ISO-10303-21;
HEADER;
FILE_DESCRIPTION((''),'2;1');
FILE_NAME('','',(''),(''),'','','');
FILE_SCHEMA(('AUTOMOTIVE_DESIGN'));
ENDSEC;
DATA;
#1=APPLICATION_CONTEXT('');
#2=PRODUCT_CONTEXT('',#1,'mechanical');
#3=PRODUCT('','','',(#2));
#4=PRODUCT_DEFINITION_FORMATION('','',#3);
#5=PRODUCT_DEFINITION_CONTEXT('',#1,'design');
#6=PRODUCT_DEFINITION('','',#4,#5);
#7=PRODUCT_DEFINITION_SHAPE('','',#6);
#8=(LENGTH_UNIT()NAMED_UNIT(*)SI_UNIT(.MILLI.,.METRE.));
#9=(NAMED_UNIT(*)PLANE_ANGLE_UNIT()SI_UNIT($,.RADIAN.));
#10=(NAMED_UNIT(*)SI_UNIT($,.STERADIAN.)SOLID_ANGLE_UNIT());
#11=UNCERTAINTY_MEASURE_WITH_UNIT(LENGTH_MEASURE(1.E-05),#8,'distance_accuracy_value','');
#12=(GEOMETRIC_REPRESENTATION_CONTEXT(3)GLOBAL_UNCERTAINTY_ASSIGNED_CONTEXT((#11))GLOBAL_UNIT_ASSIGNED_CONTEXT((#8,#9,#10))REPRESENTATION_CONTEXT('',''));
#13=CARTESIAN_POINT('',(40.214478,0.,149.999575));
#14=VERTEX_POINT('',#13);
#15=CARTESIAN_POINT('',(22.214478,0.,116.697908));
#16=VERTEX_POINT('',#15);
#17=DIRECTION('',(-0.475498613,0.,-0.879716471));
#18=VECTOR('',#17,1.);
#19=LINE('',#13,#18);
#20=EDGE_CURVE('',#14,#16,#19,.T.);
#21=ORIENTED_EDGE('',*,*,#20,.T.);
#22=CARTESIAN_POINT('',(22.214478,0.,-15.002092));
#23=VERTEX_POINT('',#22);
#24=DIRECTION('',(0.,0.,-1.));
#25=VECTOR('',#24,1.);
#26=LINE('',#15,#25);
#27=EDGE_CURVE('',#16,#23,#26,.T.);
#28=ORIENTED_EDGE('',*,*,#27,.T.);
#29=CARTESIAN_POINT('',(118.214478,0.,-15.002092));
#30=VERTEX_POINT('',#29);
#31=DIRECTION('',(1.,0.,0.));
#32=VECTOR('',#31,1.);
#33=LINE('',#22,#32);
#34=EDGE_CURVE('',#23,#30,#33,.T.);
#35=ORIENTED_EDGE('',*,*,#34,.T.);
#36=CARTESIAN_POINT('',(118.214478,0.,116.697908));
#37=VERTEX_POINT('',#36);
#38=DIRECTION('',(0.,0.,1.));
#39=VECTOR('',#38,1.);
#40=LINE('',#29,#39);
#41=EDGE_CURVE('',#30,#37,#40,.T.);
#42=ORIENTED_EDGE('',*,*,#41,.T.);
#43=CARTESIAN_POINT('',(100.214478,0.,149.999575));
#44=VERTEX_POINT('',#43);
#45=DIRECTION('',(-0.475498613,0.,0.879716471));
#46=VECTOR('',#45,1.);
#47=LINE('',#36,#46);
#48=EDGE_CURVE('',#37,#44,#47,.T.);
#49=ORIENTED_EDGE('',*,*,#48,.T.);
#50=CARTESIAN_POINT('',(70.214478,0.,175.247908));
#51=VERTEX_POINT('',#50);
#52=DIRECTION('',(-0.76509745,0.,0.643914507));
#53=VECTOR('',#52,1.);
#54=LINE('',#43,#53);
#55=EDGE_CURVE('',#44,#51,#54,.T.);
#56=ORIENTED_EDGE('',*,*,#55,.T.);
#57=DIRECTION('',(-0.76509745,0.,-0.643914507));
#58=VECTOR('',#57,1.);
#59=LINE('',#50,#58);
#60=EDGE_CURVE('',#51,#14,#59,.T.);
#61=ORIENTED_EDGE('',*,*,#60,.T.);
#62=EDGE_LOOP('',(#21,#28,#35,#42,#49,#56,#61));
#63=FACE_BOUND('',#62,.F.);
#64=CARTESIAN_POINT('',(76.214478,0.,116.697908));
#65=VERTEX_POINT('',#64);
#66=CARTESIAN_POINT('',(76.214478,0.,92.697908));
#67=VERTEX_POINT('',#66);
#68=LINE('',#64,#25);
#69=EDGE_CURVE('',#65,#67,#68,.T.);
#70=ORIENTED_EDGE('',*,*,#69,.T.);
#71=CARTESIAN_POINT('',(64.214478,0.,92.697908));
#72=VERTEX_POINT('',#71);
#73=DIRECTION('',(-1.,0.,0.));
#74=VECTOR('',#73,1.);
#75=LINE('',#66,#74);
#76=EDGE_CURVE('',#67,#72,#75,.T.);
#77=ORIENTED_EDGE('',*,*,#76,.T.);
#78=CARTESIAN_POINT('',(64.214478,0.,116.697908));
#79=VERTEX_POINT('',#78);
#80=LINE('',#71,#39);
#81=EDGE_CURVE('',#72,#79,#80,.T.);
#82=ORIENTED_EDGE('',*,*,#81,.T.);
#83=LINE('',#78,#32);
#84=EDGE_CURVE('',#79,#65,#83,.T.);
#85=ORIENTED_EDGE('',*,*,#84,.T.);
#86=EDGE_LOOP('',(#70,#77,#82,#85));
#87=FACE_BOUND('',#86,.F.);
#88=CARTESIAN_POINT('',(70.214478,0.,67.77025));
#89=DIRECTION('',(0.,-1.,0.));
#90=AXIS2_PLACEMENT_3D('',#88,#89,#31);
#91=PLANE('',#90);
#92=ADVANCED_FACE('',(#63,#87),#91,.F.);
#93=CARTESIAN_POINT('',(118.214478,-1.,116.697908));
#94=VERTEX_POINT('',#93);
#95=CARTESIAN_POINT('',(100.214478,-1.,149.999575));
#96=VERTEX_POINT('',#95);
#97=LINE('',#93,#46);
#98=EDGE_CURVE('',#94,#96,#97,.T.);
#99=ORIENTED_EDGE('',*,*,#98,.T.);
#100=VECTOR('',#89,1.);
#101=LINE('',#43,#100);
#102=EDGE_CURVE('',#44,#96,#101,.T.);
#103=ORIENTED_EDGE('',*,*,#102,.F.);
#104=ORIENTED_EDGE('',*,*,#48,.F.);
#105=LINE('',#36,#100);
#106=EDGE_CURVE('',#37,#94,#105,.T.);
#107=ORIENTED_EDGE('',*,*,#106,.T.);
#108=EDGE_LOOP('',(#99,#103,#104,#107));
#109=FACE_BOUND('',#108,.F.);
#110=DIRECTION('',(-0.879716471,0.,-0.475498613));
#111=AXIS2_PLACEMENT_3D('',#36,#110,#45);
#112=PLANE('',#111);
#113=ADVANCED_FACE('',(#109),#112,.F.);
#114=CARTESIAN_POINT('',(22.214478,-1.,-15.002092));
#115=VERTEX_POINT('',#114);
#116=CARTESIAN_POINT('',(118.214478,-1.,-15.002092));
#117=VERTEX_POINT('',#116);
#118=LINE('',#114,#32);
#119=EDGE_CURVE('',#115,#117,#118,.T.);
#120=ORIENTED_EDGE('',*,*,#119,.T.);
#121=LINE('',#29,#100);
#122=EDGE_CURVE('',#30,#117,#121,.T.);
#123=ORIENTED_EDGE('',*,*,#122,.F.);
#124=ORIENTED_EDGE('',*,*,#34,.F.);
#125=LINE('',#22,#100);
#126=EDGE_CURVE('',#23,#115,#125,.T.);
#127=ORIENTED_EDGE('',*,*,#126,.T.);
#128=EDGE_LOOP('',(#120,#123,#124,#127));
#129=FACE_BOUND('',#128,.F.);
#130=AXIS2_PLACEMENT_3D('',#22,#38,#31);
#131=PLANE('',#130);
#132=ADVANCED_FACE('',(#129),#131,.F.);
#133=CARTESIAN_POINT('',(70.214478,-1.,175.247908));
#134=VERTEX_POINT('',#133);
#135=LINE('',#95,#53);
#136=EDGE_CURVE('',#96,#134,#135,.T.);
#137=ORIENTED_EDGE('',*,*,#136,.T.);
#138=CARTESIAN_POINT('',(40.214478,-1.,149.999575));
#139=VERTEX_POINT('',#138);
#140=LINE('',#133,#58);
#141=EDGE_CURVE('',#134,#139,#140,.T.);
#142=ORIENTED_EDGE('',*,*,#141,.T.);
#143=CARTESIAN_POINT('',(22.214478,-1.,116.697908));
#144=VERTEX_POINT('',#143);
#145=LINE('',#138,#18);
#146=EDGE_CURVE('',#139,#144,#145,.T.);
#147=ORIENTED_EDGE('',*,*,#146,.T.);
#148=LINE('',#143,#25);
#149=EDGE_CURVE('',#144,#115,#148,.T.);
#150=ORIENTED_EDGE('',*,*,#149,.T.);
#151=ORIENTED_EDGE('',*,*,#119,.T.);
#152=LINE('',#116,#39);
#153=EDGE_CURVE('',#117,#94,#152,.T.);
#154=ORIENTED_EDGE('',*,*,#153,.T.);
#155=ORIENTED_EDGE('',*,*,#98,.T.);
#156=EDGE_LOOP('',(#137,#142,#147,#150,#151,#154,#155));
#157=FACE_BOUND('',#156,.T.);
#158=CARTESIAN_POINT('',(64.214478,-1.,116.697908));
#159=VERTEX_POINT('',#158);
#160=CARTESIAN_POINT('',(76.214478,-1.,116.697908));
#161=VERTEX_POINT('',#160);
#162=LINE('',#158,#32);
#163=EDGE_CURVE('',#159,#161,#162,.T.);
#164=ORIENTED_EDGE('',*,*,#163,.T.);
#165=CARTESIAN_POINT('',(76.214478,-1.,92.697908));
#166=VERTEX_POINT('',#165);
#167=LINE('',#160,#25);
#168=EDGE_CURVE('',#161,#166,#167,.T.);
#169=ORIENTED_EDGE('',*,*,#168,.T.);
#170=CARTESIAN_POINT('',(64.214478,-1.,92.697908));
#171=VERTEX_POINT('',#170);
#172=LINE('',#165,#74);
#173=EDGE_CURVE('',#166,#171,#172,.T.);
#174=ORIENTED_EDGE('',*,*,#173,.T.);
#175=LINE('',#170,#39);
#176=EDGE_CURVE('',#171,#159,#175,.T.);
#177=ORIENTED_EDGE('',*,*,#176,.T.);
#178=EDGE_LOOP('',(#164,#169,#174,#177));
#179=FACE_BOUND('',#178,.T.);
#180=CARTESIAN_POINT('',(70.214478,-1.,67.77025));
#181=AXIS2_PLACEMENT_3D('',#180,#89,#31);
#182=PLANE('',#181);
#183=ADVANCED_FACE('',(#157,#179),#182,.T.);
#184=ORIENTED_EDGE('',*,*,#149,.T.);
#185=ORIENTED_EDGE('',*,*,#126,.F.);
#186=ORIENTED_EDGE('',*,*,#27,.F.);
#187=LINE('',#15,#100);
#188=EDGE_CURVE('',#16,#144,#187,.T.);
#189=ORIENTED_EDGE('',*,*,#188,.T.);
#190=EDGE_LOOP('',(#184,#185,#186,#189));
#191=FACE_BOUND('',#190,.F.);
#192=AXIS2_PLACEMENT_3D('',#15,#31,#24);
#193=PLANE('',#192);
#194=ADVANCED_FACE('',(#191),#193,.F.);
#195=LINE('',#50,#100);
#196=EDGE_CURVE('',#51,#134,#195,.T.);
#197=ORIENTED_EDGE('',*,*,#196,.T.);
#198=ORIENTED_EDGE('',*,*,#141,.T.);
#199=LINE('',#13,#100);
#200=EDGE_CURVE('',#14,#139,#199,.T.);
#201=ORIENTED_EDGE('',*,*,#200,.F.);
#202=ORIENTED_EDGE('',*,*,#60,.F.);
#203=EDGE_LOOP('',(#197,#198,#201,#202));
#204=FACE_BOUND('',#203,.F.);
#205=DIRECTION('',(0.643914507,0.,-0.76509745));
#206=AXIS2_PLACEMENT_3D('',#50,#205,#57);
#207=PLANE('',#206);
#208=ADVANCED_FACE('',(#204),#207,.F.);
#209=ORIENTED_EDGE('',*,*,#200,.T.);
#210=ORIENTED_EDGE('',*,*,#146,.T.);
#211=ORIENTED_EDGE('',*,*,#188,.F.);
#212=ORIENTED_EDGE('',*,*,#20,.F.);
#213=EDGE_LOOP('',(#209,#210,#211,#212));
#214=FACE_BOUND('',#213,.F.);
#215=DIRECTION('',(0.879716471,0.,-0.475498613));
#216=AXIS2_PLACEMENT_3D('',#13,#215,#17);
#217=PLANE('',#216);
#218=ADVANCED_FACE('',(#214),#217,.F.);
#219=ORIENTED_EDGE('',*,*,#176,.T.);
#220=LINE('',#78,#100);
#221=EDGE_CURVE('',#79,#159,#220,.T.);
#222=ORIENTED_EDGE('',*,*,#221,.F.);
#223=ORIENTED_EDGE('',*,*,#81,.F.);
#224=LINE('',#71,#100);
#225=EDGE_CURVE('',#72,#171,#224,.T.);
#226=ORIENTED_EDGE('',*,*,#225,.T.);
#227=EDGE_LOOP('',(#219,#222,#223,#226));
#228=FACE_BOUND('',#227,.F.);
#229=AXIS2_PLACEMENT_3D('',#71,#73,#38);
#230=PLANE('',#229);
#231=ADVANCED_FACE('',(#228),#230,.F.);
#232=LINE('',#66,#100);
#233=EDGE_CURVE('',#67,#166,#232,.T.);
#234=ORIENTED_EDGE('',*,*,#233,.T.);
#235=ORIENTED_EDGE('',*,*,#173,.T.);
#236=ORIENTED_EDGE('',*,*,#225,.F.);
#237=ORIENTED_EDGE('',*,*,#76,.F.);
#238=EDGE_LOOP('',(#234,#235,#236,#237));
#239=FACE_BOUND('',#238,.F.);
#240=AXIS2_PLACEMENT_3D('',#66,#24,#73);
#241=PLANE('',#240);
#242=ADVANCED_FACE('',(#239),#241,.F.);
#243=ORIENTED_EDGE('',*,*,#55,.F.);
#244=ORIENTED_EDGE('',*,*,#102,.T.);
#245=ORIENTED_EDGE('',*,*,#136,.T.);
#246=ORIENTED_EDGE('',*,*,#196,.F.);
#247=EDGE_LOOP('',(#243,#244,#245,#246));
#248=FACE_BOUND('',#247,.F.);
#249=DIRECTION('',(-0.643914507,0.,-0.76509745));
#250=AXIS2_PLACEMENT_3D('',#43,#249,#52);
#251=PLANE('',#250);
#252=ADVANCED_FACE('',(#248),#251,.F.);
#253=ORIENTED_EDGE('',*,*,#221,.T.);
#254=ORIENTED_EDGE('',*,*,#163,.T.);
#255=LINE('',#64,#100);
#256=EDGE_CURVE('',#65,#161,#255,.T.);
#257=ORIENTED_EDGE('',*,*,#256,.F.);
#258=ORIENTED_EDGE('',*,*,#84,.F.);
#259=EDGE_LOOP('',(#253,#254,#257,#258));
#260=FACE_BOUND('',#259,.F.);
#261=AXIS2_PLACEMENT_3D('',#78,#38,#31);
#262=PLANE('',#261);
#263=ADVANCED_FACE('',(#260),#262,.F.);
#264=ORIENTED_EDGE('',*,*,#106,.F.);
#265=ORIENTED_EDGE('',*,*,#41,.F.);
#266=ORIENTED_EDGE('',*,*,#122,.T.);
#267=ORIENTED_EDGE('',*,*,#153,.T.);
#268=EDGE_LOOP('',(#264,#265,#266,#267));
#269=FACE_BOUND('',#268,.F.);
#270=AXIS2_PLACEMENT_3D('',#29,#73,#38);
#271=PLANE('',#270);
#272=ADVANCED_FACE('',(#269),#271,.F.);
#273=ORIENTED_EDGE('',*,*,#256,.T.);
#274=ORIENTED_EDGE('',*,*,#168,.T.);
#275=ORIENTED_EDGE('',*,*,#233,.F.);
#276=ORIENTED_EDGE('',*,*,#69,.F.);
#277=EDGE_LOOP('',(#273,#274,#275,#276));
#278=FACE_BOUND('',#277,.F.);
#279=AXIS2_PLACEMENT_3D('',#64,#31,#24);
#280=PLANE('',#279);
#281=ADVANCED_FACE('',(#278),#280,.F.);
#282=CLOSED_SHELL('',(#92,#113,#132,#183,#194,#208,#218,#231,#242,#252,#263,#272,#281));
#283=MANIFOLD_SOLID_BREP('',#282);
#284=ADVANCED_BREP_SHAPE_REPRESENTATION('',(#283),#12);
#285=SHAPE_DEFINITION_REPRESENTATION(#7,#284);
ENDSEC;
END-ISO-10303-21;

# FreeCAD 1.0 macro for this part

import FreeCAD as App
import Part
import Sketcher

V = App.Vector
Q = App.Units.Quantity

doc = App.newDocument("Part")
body = doc.addObject("PartDesign::Body", "Body")

sketch1 = body.newObject("Sketcher::SketchObject", "Sketch")
sketch1.AttachmentSupport = (doc.getObject("XZ_Plane"), [""])
sketch1.MapMode = "FlatFace"
sketch1.addGeometry(Part.LineSegment(V(118, -15, 0), V(118, 117, 0)), False)
sketch1.addGeometry(Part.LineSegment(V(118, 117, 0), V(100, 150, 0)), False)
sketch1.addGeometry(Part.LineSegment(V(100, 150, 0), V(70, 175, 0)), False)
sketch1.addGeometry(Part.LineSegment(V(70, 175, 0), V(40, 150, 0)), False)
sketch1.addGeometry(Part.LineSegment(V(40, 150, 0), V(22, 117, 0)), False)
sketch1.addGeometry(Part.LineSegment(V(22, 117, 0), V(22, -15, 0)), False)
sketch1.addGeometry(Part.LineSegment(V(22, -15, 0), V(118, -15, 0)), False)
sketch1.addGeometry(Part.LineSegment(V(64, 93, 0), V(64, 117, 0)), False)
sketch1.addGeometry(Part.LineSegment(V(64, 117, 0), V(76, 117, 0)), False)
sketch1.addGeometry(Part.LineSegment(V(76, 117, 0), V(76, 93, 0)), False)
sketch1.addGeometry(Part.LineSegment(V(76, 93, 0), V(64, 93, 0)), False)
sketch1.addConstraint(Sketcher.Constraint("Coincident", 0, 2, 1, 1))
sketch1.addConstraint(Sketcher.Constraint("Coincident", 1, 2, 2, 1))
sketch1.addConstraint(Sketcher.Constraint("Coincident", 2, 2, 3, 1))
sketch1.addConstraint(Sketcher.Constraint("Coincident", 3, 2, 4, 1))
sketch1.addConstraint(Sketcher.Constraint("Coincident", 4, 2, 5, 1))
sketch1.addConstraint(Sketcher.Constraint("Coincident", 5, 2, 6, 1))
sketch1.addConstraint(Sketcher.Constraint("Coincident", 6, 2, 0, 1))
sketch1.addConstraint(Sketcher.Constraint("Coincident", 7, 2, 8, 1))
sketch1.addConstraint(Sketcher.Constraint("Coincident", 8, 2, 9, 1))
sketch1.addConstraint(Sketcher.Constraint("Coincident", 9, 2, 10, 1))
sketch1.addConstraint(Sketcher.Constraint("Coincident", 10, 2, 7, 1))
sketch1.addConstraint(Sketcher.Constraint("Vertical", 0))
sketch1.addConstraint(Sketcher.Constraint("Vertical", 5))
sketch1.addConstraint(Sketcher.Constraint("Horizontal", 6))
sketch1.addConstraint(Sketcher.Constraint("Vertical", 7))
sketch1.addConstraint(Sketcher.Constraint("Horizontal", 8))
sketch1.addConstraint(Sketcher.Constraint("Vertical", 9))
sketch1.addConstraint(Sketcher.Constraint("Horizontal", 10))
sketch1.addConstraint(Sketcher.Constraint("Horizontal", 1, 2, 3, 2))
sketch1.addConstraint(Sketcher.Constraint("Horizontal", 0, 2, 4, 2))
sketch1.addConstraint(Sketcher.Constraint("Horizontal", 4, 2, 7, 2))
sketch1.addConstraint(Sketcher.Constraint("Equal", 2, 3))
sketch1.addConstraint(Sketcher.Constraint("Equal", 1, 4))
sketch1.addConstraint(Sketcher.Constraint("DistanceX", 6, 1, 6, 2, Q("96 mm")))
sketch1.addConstraint(Sketcher.Constraint("DistanceX", 8, 1, 8, 2, Q("12 mm")))
sketch1.addConstraint(Sketcher.Constraint("DistanceY", 7, 1, 7, 2, Q("24 mm")))
sketch1.addConstraint(Sketcher.Constraint("DistanceY", 0, 1, 0, 2, Q("131.7 mm")))
sketch1.addConstraint(Sketcher.Constraint("DistanceX", 1, 2, 0, 2, Q("18 mm")))
sketch1.addConstraint(Sketcher.Constraint("DistanceX", 3, 2, 7, 2, Q("24 mm")))
sketch1.addConstraint(Sketcher.Constraint("DistanceY", 0, 2, 2, 2, Q("58.55 mm")))
sketch1.addConstraint(Sketcher.Constraint("Distance", 1, Q("37.855 mm")))
sketch1.addConstraint(Sketcher.Constraint("DistanceX", -1, 1, 0, 2, Q("118.214478 mm")))
sketch1.addConstraint(Sketcher.Constraint("DistanceY", -1, 1, 0, 2, Q("116.697908 mm")))
pad1 = body.newObject("PartDesign::Pad", "Pad")
pad1.Profile = sketch1
pad1.Length = 1

doc.recompute()
